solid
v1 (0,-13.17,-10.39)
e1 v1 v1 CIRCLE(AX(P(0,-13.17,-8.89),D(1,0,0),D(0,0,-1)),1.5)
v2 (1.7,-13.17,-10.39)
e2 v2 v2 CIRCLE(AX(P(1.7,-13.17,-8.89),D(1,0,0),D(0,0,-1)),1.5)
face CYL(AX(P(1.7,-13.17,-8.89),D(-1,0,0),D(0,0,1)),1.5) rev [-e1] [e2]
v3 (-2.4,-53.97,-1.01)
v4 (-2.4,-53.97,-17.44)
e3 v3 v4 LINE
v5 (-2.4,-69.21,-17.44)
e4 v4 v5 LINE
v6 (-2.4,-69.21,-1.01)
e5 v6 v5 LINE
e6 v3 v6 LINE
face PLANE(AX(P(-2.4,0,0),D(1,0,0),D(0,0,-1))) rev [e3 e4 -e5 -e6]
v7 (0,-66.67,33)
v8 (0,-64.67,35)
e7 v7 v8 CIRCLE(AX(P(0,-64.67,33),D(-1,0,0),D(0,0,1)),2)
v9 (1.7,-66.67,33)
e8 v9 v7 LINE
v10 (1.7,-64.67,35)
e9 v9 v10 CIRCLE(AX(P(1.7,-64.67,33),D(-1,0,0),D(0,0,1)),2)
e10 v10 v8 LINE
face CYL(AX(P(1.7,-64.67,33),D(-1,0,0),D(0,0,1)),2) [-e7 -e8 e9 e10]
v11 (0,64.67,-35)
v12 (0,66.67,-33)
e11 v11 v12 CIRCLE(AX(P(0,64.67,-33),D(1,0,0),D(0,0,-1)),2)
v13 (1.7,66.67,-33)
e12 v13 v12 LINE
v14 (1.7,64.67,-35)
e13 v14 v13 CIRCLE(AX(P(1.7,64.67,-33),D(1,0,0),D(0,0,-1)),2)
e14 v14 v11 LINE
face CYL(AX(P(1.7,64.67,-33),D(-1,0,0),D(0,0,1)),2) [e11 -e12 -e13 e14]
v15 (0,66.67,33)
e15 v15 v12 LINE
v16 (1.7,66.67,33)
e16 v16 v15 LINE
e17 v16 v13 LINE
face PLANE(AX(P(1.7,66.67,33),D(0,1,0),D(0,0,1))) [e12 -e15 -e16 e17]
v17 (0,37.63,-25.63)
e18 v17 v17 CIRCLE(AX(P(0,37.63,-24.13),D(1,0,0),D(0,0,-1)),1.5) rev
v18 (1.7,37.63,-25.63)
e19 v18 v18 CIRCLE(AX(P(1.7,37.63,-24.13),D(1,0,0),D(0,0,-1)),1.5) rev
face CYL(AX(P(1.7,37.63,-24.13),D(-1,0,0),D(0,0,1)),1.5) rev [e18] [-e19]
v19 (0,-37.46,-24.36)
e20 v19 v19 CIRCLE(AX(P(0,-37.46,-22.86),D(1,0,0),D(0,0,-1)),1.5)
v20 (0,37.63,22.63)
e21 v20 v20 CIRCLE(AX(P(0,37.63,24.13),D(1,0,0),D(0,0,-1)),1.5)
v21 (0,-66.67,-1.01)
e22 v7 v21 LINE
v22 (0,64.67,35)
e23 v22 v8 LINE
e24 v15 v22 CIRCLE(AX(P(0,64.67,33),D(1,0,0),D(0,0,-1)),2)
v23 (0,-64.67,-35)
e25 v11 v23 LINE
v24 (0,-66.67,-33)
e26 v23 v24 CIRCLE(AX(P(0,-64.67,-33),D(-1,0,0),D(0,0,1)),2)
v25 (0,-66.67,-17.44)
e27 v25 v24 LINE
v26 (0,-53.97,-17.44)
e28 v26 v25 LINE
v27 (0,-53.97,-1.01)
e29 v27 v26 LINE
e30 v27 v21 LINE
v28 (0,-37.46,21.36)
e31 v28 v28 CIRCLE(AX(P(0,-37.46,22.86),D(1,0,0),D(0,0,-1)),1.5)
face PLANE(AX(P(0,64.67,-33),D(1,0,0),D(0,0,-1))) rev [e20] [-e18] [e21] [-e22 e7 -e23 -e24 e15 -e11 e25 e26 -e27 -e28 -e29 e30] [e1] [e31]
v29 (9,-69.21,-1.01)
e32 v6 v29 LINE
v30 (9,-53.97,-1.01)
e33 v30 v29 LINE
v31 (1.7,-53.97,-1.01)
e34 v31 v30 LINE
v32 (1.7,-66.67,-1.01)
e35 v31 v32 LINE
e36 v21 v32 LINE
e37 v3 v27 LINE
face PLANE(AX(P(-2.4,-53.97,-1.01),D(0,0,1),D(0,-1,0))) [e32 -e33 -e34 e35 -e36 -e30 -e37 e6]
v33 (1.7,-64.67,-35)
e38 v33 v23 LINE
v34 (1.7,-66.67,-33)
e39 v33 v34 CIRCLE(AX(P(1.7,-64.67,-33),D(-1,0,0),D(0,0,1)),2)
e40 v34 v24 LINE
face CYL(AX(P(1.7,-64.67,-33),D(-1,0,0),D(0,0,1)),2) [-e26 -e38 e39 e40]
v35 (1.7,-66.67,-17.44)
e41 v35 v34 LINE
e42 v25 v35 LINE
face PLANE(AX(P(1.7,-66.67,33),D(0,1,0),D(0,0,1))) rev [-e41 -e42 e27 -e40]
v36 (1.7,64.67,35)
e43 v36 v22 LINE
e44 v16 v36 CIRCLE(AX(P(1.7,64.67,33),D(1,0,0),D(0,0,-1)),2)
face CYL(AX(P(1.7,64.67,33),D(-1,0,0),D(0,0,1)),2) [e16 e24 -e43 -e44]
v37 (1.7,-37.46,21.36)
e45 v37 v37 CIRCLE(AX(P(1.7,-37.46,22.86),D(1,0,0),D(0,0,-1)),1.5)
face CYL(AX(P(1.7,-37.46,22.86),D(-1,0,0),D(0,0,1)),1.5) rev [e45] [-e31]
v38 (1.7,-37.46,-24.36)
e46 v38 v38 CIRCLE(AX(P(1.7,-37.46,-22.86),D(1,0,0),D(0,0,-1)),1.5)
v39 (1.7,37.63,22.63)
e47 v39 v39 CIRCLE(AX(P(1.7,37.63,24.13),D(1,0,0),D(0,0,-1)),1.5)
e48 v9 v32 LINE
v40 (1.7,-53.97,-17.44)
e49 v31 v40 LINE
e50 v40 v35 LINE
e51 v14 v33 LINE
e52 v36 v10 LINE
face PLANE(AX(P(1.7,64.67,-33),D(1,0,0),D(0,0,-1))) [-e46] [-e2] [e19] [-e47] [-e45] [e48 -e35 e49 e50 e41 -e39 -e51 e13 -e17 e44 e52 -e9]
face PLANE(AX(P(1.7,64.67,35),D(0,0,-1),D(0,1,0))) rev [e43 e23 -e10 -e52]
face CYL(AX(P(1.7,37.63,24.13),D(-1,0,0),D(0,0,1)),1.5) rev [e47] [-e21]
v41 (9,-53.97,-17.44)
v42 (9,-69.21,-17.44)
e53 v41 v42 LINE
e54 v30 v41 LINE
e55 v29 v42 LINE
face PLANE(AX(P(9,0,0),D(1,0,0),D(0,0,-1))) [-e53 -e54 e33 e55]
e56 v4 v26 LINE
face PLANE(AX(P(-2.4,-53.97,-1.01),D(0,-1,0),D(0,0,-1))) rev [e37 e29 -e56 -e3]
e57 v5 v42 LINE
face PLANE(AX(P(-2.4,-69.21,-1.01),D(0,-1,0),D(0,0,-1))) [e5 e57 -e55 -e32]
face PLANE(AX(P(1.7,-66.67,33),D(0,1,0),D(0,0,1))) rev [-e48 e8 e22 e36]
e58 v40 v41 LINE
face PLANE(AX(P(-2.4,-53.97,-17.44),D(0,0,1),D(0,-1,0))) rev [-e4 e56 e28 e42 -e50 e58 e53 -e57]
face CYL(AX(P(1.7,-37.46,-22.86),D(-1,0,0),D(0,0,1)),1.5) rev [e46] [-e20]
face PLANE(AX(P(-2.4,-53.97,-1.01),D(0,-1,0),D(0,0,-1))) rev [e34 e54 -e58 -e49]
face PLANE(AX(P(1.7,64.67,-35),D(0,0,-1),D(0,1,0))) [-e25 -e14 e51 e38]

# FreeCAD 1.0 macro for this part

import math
import FreeCAD as App
import Part
import Sketcher
Q = App.Units.Quantity

doc = App.newDocument("Part")
body = doc.addObject("PartDesign::Body", "Body")

# Sketch on YZ plane
sketch1 = doc.addObject("Sketcher::SketchObject", "Sketch")
body.addObject(sketch1)
sketch1.AttachmentSupport = (doc.YZ_Plane, [""])
sketch1.MapMode = "FlatFace"
sketch1.addGeometry([
    Part.LineSegment(App.Vector(66.67, -33, 0), App.Vector(66.67, 33, 0)),  # 0
    Part.ArcOfCircle(Part.Circle(App.Vector(64.67, 33, 0), App.Vector(0, 0, 1), 2), math.radians(0), math.radians(90)),  # 1
    Part.LineSegment(App.Vector(64.67, 35, 0), App.Vector(-64.67, 35, 0)),  # 2
    Part.ArcOfCircle(Part.Circle(App.Vector(-64.67, 33, 0), App.Vector(0, 0, 1), 2), math.radians(90), math.radians(180)),  # 3
    Part.LineSegment(App.Vector(-66.67, 33, 0), App.Vector(-66.67, -33, 0)),  # 4
    Part.ArcOfCircle(Part.Circle(App.Vector(-64.67, -33, 0), App.Vector(0, 0, 1), 2), math.radians(-180), math.radians(-90)),  # 5
    Part.LineSegment(App.Vector(-64.67, -35, 0), App.Vector(64.67, -35, 0)),  # 6
    Part.ArcOfCircle(Part.Circle(App.Vector(64.67, -33, 0), App.Vector(0, 0, 1), 2), math.radians(-90), math.radians(0)),  # 7
    Part.Circle(App.Vector(-37.46, -22.86, 0), App.Vector(0, 0, 1), 1.5),  # 8
    Part.Circle(App.Vector(-13.17, -8.89, 0), App.Vector(0, 0, 1), 1.5),  # 9
    Part.Circle(App.Vector(-37.46, 22.86, 0), App.Vector(0, 0, 1), 1.5),  # 10
    Part.Circle(App.Vector(37.63, -24.13, 0), App.Vector(0, 0, 1), 1.5),  # 11
    Part.Circle(App.Vector(37.63, 24.13, 0), App.Vector(0, 0, 1), 1.5),  # 12
], False)
sketch1.addConstraint([
    Sketcher.Constraint("Tangent", 0, 2, 1, 1),
    Sketcher.Constraint("Tangent", 1, 2, 2, 1),
    Sketcher.Constraint("Tangent", 2, 2, 3, 1),
    Sketcher.Constraint("Tangent", 3, 2, 4, 1),
    Sketcher.Constraint("Tangent", 4, 2, 5, 1),
    Sketcher.Constraint("Tangent", 5, 2, 6, 1),
    Sketcher.Constraint("Tangent", 6, 2, 7, 1),
    Sketcher.Constraint("Tangent", 7, 2, 0, 1),
    Sketcher.Constraint("Vertical", 0),
    Sketcher.Constraint("Horizontal", 2),
    Sketcher.Constraint("Vertical", 4),
    Sketcher.Constraint("Horizontal", 6),
    Sketcher.Constraint("Equal", 1, 3),
    Sketcher.Constraint("Equal", 3, 5),
    Sketcher.Constraint("Equal", 5, 7),
    Sketcher.Constraint("Equal", 8, 9),
    Sketcher.Constraint("Equal", 9, 10),
    Sketcher.Constraint("Equal", 10, 11),
    Sketcher.Constraint("Equal", 11, 12),
    Sketcher.Constraint("Symmetric", 1, 3, 5, 3, -1, 1),
    Sketcher.Constraint("Symmetric", 8, 3, 10, 3, -1),
    Sketcher.Constraint("Symmetric", 11, 3, 12, 3, -1),
    Sketcher.Constraint("Diameter", 8, Q("3 mm")),
    Sketcher.Constraint("Radius", 1, Q("2 mm")),
    Sketcher.Constraint("DistanceY", 0, 1, 0, 2, Q("66 mm")),
    Sketcher.Constraint("DistanceX", 2, 2, 2, 1, Q("129.34 mm")),
    Sketcher.Constraint("DistanceX", 5, 3, 9, 3, Q("51.5 mm")),
    Sketcher.Constraint("DistanceX", 9, 3, 11, 3, Q("50.8 mm")),
    Sketcher.Constraint("DistanceX", 8, 3, -1, 1, Q("37.46 mm")),
    Sketcher.Constraint("DistanceY", 8, 3, -1, 1, Q("22.86 mm")),
    Sketcher.Constraint("DistanceY", 9, 3, -1, 1, Q("8.89 mm")),
    Sketcher.Constraint("DistanceY", 11, 3, -1, 1, Q("24.13 mm")),
])
pad1 = doc.addObject("PartDesign::Pad", "Pad")
body.addObject(pad1)
pad1.Profile = sketch1
pad1.Length = 1.7

# Sketch on YZ plane
sketch2 = doc.addObject("Sketcher::SketchObject", "Sketch001")
body.addObject(sketch2)
sketch2.AttachmentSupport = (doc.YZ_Plane, [""])
sketch2.MapMode = "FlatFace"
sketch2.AttachmentOffset = App.Placement(App.Vector(0, 0, 1.7), App.Rotation())
sketch2.addGeometry([
    Part.LineSegment(App.Vector(-53.97, -1.01, 0), App.Vector(-69.21, -1.01, 0)),
    Part.LineSegment(App.Vector(-69.21, -1.01, 0), App.Vector(-69.21, -17.44, 0)),
    Part.LineSegment(App.Vector(-69.21, -17.44, 0), App.Vector(-53.97, -17.44, 0)),
    Part.LineSegment(App.Vector(-53.97, -17.44, 0), App.Vector(-53.97, -1.01, 0)),
], False)
sketch2.addConstraint([
    Sketcher.Constraint("Coincident", 0, 2, 1, 1),
    Sketcher.Constraint("Coincident", 1, 2, 2, 1),
    Sketcher.Constraint("Coincident", 2, 2, 3, 1),
    Sketcher.Constraint("Coincident", 3, 2, 0, 1),
    Sketcher.Constraint("Horizontal", 0),
    Sketcher.Constraint("Vertical", 1),
    Sketcher.Constraint("Horizontal", 2),
    Sketcher.Constraint("Vertical", 3),
    Sketcher.Constraint("DistanceX", 0, 2, 0, 1, Q("15.24 mm")),
    Sketcher.Constraint("DistanceY", 1, 2, 1, 1, Q("16.43 mm")),
    Sketcher.Constraint("DistanceX", 0, 2, -1, 1, Q("69.21 mm")),
    Sketcher.Constraint("DistanceY", 0, 2, -1, 1, Q("1.01 mm")),
])
pad2 = doc.addObject("PartDesign::Pad", "Pad001")
body.addObject(pad2)
pad2.Profile = sketch2
pad2.Type = "TwoLengths"
pad2.Length = 7.3
pad2.Length2 = 4.1

doc.recompute()
